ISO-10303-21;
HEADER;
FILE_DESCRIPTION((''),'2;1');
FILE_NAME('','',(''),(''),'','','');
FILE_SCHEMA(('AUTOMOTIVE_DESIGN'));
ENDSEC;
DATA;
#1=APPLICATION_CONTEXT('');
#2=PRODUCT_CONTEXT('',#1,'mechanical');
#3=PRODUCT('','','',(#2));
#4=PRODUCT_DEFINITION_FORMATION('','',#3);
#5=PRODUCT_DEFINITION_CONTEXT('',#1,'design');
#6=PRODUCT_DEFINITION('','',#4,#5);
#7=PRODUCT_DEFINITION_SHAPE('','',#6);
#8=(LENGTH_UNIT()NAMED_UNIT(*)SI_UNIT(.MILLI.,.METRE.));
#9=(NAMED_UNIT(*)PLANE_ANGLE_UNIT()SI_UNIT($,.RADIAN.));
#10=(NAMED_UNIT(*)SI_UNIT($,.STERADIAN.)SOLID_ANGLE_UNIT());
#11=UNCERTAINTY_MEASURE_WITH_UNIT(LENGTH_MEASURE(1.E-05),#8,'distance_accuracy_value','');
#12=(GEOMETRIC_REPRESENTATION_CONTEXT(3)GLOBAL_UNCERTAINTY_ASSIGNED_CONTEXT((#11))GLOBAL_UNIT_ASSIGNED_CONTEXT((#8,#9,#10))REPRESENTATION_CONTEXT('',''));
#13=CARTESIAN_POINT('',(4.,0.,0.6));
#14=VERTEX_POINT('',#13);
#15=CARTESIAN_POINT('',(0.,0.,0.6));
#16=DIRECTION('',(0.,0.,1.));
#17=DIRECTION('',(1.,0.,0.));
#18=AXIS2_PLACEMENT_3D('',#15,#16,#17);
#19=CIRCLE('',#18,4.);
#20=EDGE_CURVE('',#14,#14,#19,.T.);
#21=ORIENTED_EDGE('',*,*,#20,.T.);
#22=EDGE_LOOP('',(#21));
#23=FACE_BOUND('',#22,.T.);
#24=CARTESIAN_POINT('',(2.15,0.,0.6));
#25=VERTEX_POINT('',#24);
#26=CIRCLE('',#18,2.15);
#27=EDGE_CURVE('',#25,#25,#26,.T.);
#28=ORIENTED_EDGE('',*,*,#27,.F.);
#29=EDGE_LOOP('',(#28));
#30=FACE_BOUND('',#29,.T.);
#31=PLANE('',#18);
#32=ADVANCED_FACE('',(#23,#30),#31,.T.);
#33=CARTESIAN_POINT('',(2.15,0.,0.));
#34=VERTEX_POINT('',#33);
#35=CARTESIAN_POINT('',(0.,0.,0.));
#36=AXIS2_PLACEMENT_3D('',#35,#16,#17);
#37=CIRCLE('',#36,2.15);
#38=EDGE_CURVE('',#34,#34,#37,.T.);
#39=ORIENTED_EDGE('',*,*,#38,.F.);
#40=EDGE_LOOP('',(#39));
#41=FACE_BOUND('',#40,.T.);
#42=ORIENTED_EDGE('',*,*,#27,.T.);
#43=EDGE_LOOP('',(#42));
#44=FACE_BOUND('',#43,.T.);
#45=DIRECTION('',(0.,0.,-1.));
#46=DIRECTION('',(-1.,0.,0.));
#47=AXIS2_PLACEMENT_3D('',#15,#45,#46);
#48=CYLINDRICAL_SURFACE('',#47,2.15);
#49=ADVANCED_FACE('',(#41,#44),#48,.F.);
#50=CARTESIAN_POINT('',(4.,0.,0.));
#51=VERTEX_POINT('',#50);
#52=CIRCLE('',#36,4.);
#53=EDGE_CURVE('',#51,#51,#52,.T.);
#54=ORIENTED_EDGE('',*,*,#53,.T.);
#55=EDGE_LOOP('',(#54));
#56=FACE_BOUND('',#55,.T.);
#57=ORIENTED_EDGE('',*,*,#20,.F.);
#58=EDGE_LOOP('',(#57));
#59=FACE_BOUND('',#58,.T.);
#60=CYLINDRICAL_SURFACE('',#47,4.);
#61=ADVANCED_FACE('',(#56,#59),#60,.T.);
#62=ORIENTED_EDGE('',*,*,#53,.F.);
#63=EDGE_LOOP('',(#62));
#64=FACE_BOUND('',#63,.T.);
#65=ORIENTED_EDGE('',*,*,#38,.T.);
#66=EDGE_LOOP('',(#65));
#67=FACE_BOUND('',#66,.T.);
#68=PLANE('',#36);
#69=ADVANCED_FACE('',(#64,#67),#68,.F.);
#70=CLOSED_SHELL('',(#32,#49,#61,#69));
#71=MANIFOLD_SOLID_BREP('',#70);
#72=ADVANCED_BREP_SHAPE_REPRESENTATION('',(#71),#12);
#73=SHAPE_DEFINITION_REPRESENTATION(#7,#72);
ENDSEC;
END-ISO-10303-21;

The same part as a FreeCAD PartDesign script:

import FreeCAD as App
import Part
import Sketcher
from FreeCAD import Vector
Q = App.Units.Quantity

doc = App.newDocument("Part")
params = doc.addObject("Spreadsheet::Sheet", "Params")
for row, (alias, value) in enumerate([
    ("sketch1_diameter", "8 mm"),
    ("sketch1_diameter2", "4.3 mm"),
    ("pad1_length", "0.6 mm"),
], start=1):
    params.set(f"A{row}", alias)
    params.set(f"B{row}", "=" + value)
    params.setAlias(f"B{row}", alias)

body = doc.addObject("PartDesign::Body", "Body")

# Sketch on XY plane
sketch1 = body.newObject("Sketcher::SketchObject", "Sketch")
sketch1.AttachmentSupport = (doc.getObject("XY_Plane"), [""])
sketch1.MapMode = "FlatFace"
sketch1.addGeometry([
    Part.Circle(Vector(0, 0, 0), Vector(0, 0, 1), 4),
    Part.Circle(Vector(0, 0, 0), Vector(0, 0, 1), 2.15),
], False)
sketch1.addConstraint([
    Sketcher.Constraint("Coincident", 0, 3, -1, 1),
    Sketcher.Constraint("Coincident", 1, 3, -1, 1),
    Sketcher.Constraint("Diameter", 0, Q("8 mm")),
    Sketcher.Constraint("Diameter", 1, Q("4.3 mm")),
])
sketch1.setExpression("Constraints[2]", "Params.sketch1_diameter")
sketch1.setExpression("Constraints[3]", "Params.sketch1_diameter2")
pad1 = body.newObject("PartDesign::Pad", "Pad")
pad1.Profile = sketch1
pad1.setExpression("Length", "Params.pad1_length")

doc.recompute()
